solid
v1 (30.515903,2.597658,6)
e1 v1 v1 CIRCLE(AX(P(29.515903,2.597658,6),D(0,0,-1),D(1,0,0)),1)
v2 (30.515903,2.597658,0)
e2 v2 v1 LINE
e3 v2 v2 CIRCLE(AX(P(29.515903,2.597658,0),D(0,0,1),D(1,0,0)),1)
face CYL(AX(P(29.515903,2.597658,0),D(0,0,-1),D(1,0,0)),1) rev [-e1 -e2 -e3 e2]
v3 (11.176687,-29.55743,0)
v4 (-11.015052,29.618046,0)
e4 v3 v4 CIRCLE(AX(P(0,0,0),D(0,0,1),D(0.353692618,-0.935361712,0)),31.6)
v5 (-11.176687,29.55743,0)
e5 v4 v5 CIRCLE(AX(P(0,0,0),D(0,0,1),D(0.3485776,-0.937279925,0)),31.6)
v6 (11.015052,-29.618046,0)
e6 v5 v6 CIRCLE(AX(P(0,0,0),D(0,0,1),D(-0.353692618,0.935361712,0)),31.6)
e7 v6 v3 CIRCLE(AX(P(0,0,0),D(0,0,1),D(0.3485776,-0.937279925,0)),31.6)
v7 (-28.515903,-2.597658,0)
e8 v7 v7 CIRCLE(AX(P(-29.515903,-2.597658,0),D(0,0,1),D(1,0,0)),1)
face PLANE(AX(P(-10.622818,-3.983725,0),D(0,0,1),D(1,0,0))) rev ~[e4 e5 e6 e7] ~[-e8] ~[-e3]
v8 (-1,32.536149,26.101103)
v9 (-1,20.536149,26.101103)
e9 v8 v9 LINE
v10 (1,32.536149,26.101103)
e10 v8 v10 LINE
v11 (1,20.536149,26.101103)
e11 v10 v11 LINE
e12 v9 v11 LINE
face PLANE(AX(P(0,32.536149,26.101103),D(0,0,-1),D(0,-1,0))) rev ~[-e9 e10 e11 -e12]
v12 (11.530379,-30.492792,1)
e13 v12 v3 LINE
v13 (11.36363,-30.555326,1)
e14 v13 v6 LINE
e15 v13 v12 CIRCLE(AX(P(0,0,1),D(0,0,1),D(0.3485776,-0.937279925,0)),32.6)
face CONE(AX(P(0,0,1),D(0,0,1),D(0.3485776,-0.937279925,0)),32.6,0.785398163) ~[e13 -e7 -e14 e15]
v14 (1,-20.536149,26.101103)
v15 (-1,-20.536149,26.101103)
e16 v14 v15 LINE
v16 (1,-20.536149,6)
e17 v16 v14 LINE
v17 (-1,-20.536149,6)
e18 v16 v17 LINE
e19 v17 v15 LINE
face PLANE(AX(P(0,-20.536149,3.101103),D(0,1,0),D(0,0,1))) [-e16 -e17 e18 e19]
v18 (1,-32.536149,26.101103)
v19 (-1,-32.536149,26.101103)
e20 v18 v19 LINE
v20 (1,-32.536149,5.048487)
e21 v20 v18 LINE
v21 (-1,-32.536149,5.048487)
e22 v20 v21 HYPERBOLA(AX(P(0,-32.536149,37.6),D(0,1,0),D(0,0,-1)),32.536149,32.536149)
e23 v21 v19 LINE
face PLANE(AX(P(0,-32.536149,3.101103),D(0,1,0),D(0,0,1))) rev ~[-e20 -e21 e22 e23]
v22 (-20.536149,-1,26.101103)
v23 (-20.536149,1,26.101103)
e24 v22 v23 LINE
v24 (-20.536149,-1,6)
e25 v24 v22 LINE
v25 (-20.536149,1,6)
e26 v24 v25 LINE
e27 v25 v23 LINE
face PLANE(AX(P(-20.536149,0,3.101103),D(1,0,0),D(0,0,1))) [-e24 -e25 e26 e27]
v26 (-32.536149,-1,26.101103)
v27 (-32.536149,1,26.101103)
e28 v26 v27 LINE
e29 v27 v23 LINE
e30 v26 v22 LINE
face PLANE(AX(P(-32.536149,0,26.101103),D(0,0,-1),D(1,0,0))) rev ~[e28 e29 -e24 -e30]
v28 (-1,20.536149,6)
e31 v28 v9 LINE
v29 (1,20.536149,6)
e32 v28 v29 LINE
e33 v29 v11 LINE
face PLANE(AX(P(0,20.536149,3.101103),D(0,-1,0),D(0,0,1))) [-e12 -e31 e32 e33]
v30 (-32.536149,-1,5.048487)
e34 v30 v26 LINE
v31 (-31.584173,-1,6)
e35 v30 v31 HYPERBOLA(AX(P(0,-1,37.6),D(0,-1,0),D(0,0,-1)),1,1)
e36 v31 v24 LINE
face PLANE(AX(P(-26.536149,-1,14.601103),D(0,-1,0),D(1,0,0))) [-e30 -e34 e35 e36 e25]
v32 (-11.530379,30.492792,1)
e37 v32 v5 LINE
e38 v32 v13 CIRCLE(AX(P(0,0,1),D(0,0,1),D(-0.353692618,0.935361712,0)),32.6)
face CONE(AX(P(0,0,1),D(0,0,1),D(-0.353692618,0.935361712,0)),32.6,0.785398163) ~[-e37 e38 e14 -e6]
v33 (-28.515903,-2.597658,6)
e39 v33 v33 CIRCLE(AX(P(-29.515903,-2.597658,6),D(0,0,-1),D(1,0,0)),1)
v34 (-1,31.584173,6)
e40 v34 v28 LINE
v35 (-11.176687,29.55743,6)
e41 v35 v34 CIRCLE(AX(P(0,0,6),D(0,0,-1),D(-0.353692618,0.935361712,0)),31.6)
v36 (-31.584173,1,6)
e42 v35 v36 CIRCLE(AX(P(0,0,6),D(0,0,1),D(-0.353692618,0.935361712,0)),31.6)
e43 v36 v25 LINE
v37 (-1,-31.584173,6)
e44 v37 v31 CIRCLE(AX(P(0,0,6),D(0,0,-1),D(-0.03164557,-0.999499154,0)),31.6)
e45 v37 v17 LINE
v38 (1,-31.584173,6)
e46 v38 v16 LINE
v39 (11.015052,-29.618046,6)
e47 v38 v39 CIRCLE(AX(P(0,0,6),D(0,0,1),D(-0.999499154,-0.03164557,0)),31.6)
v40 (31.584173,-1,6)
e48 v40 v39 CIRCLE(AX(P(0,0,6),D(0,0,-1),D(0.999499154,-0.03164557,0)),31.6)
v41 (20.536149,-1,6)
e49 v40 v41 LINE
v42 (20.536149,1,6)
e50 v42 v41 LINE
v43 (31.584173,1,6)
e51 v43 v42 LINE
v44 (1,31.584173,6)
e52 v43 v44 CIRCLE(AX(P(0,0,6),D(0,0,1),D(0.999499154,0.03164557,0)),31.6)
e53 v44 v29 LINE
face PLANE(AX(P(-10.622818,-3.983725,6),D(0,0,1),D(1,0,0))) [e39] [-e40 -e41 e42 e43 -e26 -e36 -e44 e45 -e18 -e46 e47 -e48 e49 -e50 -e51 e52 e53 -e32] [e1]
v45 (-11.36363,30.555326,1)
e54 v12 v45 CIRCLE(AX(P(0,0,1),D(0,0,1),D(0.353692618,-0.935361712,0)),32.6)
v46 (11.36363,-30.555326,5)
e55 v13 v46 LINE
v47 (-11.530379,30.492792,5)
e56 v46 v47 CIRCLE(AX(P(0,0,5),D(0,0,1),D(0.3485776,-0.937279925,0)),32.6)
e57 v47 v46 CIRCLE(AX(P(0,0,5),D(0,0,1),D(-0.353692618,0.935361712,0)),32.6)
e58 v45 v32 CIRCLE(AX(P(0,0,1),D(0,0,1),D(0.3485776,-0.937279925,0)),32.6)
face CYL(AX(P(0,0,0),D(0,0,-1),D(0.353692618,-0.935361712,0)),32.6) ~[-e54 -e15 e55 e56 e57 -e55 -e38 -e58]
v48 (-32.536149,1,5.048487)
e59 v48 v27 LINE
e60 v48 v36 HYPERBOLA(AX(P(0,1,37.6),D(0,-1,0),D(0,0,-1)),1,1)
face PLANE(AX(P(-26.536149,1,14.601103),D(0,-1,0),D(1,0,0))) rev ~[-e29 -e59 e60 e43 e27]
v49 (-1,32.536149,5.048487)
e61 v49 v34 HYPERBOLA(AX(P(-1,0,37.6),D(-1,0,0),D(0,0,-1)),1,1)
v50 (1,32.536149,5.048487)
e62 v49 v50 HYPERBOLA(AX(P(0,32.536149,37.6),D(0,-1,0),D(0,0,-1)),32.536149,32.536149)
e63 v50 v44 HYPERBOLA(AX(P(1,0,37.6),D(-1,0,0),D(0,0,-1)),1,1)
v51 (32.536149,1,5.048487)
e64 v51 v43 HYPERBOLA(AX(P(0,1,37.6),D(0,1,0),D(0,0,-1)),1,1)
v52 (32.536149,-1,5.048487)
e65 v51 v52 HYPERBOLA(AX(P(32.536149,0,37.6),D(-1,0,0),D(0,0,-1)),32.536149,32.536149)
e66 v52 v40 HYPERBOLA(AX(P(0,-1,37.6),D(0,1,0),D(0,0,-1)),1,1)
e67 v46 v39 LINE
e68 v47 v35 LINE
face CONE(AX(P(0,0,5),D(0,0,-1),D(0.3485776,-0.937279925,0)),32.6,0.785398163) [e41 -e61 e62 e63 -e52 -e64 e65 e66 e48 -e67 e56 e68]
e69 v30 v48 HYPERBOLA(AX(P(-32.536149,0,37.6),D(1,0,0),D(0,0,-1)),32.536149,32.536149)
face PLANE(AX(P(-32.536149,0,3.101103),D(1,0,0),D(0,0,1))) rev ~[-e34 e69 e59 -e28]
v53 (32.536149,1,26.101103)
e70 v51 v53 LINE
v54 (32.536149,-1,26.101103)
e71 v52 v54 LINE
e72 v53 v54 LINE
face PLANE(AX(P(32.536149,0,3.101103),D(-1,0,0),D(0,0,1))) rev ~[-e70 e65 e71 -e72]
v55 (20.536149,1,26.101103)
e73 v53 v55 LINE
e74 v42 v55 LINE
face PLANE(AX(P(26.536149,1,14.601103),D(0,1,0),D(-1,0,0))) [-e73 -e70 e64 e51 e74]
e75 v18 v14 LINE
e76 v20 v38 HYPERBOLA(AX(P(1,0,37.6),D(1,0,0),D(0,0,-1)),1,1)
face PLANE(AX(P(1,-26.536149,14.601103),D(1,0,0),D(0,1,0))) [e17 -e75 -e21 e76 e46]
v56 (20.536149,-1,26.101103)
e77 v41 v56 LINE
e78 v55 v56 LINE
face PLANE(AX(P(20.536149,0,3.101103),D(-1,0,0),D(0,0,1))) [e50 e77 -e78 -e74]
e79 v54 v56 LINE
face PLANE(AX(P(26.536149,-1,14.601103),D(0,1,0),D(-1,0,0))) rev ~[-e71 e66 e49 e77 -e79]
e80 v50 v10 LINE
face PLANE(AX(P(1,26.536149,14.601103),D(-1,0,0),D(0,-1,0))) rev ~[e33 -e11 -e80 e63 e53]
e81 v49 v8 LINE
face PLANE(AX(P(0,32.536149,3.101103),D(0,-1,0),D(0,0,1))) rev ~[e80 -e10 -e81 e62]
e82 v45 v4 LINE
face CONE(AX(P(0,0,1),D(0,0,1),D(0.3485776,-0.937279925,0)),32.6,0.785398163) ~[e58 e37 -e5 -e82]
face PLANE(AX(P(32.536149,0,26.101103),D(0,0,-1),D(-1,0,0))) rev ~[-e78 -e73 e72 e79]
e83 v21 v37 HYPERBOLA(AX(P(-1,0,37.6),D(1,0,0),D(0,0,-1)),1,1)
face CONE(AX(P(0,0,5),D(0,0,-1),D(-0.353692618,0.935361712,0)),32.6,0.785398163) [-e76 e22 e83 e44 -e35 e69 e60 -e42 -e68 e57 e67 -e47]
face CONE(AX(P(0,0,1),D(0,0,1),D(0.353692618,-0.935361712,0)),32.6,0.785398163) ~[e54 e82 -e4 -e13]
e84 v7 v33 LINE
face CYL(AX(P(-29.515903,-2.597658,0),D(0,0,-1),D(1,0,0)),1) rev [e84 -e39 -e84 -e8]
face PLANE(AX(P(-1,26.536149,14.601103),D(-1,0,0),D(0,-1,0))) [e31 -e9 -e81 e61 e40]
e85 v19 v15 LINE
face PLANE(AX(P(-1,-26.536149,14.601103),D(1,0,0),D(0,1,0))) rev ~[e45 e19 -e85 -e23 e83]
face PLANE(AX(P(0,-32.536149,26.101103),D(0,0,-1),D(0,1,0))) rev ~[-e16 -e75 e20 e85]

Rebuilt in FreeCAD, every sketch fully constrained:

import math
import FreeCAD as App
import Part
import Sketcher
from FreeCAD import Vector
Q = App.Units.Quantity


def edges_at(feature, points):
    """Names of the edges that pass closest to the given points."""
    edges = feature.Shape.Edges
    near = lambda p: min(range(len(edges)), key=lambda i: edges[i].distToShape(Part.Vertex(*p))[0])
    return sorted({f"Edge{near(p) + 1}" for p in points})

doc = App.newDocument("Part")
body = doc.addObject("PartDesign::Body", "Body")

sketch1 = body.newObject("Sketcher::SketchObject", "Sketch")
sketch1.AttachmentSupport = (doc.getObject("XY_Plane"), [""])
sketch1.MapMode = "FlatFace"
sketch1.addGeometry([
    Part.ArcOfCircle(Part.Circle(Vector(0, 0, 0), Vector(0, 0, 1), 33), math.radians(111), math.radians(290)),
    Part.ArcOfCircle(Part.Circle(Vector(0, 0, 0), Vector(0, 0, 1), 33), math.radians(-70), math.radians(111)),
], False)
sketch1.addConstraint([
    Sketcher.Constraint("Tangent", 0, 1, 1, 2),
    Sketcher.Constraint("Coincident", 1, 1, 0, 2),
    Sketcher.Constraint("Coincident", 0, 3, -1, 1),
    Sketcher.Constraint("Radius", 0, Q("32.6 mm")),
    Sketcher.Constraint("DistanceX", 0, 1, -1, 1, Q("11.530379 mm")),
    Sketcher.Constraint("DistanceX", -1, 1, 1, 1, Q("11.36363 mm")),
])
pad1 = body.newObject("PartDesign::Pad", "Pad")
pad1.Profile = sketch1
pad1.Length = 6
doc.recompute()

chamfer = body.newObject("PartDesign::Chamfer", "Chamfer")
chamfer.Base = (pad1, edges_at(pad1, [(30.524, 11.447, 6), (30.524, 11.447, 0)]))
chamfer.Size = 1

sketch2 = body.newObject("Sketcher::SketchObject", "Sketch001")
sketch2.AttachmentSupport = (doc.getObject("XZ_Plane"), [""])
sketch2.MapMode = "FlatFace"
sketch2.addGeometry([
    Part.LineSegment(Vector(-33, 26, 0), Vector(-33, 3, 0)),
    Part.LineSegment(Vector(-33, 3, 0), Vector(-21, 3, 0)),
    Part.LineSegment(Vector(-21, 3, 0), Vector(-21, 26, 0)),
    Part.LineSegment(Vector(-21, 26, 0), Vector(-33, 26, 0)),
], False)
sketch2.addConstraint([
    Sketcher.Constraint("Coincident", 0, 2, 1, 1),
    Sketcher.Constraint("Coincident", 1, 2, 2, 1),
    Sketcher.Constraint("Coincident", 2, 2, 3, 1),
    Sketcher.Constraint("Coincident", 3, 2, 0, 1),
    Sketcher.Constraint("Vertical", 0),
    Sketcher.Constraint("Horizontal", 1),
    Sketcher.Constraint("Vertical", 2),
    Sketcher.Constraint("Horizontal", 3),
    Sketcher.Constraint("DistanceX", 1, 1, 1, 2, Q("12 mm")),
    Sketcher.Constraint("DistanceY", 0, 2, 0, 1, Q("23 mm")),
    Sketcher.Constraint("DistanceX", 0, 2, -1, 1, Q("32.536149 mm")),
    Sketcher.Constraint("DistanceY", -1, 1, 0, 2, Q("3.101103 mm")),
])
pad2 = body.newObject("PartDesign::Pad", "Pad001")
pad2.Profile = sketch2
pad2.Length = 2
pad2.Midplane = True
body2 = doc.addObject("PartDesign::Body", "Body001")
doc.recompute()

body2.BaseFeature = body
doc.recompute()

body3 = doc.addObject("PartDesign::Body", "Body002")
body3.BaseFeature = body
body3.Placement = App.Placement(Vector(0, 0, 0), App.Rotation(Vector(0, 0, -1), 90))
boolean = body2.newObject("PartDesign::Boolean", "Boolean")
boolean.Type = "Fuse"
boolean.addObjects([body3])
doc.recompute()

body4 = doc.addObject("PartDesign::Body", "Body003")
body4.BaseFeature = body
body4.Placement = App.Placement(Vector(0, 0, 0), App.Rotation(Vector(0, 0, -1), 180))
boolean2 = body2.newObject("PartDesign::Boolean", "Boolean001")
boolean2.Type = "Fuse"
boolean2.addObjects([body4])
doc.recompute()

body.Placement = App.Placement(Vector(0, 0, 0), App.Rotation(Vector(0, 0, -1), 270))
boolean3 = body2.newObject("PartDesign::Boolean", "Boolean002")
boolean3.Type = "Fuse"
boolean3.addObjects([body])

sketch3 = body2.newObject("Sketcher::SketchObject", "Sketch002")
sketch3.AttachmentSupport = (doc.getObject("XY_Plane001"), [""])
sketch3.MapMode = "FlatFace"
sketch3.addGeometry([
    Part.Circle(Vector(-29.5, -2.6, 0), Vector(0, 0, 1), 1),
    Part.Circle(Vector(29.5, 2.6, 0), Vector(0, 0, 1), 1),
], False)
sketch3.addConstraint([
    Sketcher.Constraint("Equal", 0, 1),
    Sketcher.Constraint("Symmetric", 0, 3, 1, 3, -1, 1),
    Sketcher.Constraint("Diameter", 0, Q("2 mm")),
    Sketcher.Constraint("DistanceX", 0, 3, -1, 1, Q("29.515903 mm")),
    Sketcher.Constraint("DistanceY", 0, 3, -1, 1, Q("2.597658 mm")),
])
pocket1 = body2.newObject("PartDesign::Pocket", "Pocket")
pocket1.Profile = sketch3
pocket1.Length = 25
pocket1.Reversed = True

doc.recompute()
